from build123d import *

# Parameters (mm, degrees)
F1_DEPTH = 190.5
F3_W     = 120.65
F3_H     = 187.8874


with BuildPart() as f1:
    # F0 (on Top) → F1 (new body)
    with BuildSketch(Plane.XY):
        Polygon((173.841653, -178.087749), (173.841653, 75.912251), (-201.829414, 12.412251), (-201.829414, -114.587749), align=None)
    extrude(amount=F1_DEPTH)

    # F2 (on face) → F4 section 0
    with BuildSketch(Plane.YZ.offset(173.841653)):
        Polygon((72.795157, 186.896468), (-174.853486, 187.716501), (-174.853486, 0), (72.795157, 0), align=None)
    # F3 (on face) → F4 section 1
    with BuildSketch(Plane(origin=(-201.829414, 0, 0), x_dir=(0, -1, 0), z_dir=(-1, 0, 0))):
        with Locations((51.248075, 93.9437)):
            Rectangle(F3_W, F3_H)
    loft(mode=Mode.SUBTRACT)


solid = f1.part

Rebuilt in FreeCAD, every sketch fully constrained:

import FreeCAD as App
import Part
import Sketcher
Q = App.Units.Quantity

doc = App.newDocument("Part")
body = doc.addObject("PartDesign::Body", "Body")

# Sketch on XY plane
sketch1 = body.newObject("Sketcher::SketchObject", "Sketch")
sketch1.AttachmentSupport = (doc.getObject("XY_Plane"), [""])
sketch1.MapMode = "FlatFace"
sketch1.addGeometry([
    Part.LineSegment(App.Vector(174, -178, 0), App.Vector(174, 76, 0)),
    Part.LineSegment(App.Vector(174, 76, 0), App.Vector(-202, 12, 0)),
    Part.LineSegment(App.Vector(-202, 12, 0), App.Vector(-202, -115, 0)),
    Part.LineSegment(App.Vector(-202, -115, 0), App.Vector(174, -178, 0)),
], False)
sketch1.addConstraint([
    Sketcher.Constraint("Coincident", 0, 2, 1, 1),
    Sketcher.Constraint("Coincident", 1, 2, 2, 1),
    Sketcher.Constraint("Coincident", 2, 2, 3, 1),
    Sketcher.Constraint("Coincident", 3, 2, 0, 1),
    Sketcher.Constraint("Vertical", 0),
    Sketcher.Constraint("Vertical", 2),
    Sketcher.Constraint("Equal", 1, 3),
    Sketcher.Constraint("DistanceY", 0, 1, 0, 2, Q("10 in")),
    Sketcher.Constraint("DistanceY", 2, 2, 2, 1, Q("5 in")),
    Sketcher.Constraint("Distance", 1, Q("15 in")),
    Sketcher.Constraint("DistanceY", -1, 1, 0, 2, 75.912251),
    Sketcher.Constraint("DistanceX", -1, 1, 0, 2, 173.841653),
])
pad1 = body.newObject("PartDesign::Pad", "Pad")
pad1.Profile = sketch1
pad1.Length = Q("7.5 in")

# Sketch on YZ plane
sketch2 = body.newObject("Sketcher::SketchObject", "Sketch001")
sketch2.AttachmentSupport = (doc.getObject("YZ_Plane"), [""])
sketch2.MapMode = "FlatFace"
sketch2.AttachmentOffset = App.Placement(App.Vector(0, 0, 173.841653), App.Rotation())
sketch2.addGeometry([
    Part.LineSegment(App.Vector(73, 187, 0), App.Vector(-175, 188, 0)),
    Part.LineSegment(App.Vector(-175, 188, 0), App.Vector(-175, 0, 0)),
    Part.LineSegment(App.Vector(-175, 0, 0), App.Vector(73, 0, 0)),
    Part.LineSegment(App.Vector(73, 0, 0), App.Vector(73, 187, 0)),
], False)
sketch2.addConstraint([
    Sketcher.Constraint("Coincident", 0, 2, 1, 1),
    Sketcher.Constraint("Coincident", 1, 2, 2, 1),
    Sketcher.Constraint("Coincident", 2, 2, 3, 1),
    Sketcher.Constraint("Coincident", 3, 2, 0, 1),
    Sketcher.Constraint("Vertical", 1),
    Sketcher.Constraint("Horizontal", 2),
    Sketcher.Constraint("Vertical", 3),
    Sketcher.Constraint("PointOnObject", 1, 2, -1),
    Sketcher.Constraint("Distance", 0, Q("9.75 in")),
    Sketcher.Constraint("DistanceY", 1, 2, 1, 1, 187.716501),
    Sketcher.Constraint("DistanceY", 3, 1, 3, 2, 186.896468),
    Sketcher.Constraint("DistanceX", 0, 2, -1, 1, 174.853486),
])

# Sketch on YZ plane
sketch3 = body.newObject("Sketcher::SketchObject", "Sketch002")
sketch3.AttachmentSupport = (doc.getObject("YZ_Plane"), [""])
sketch3.MapMode = "FlatFace"
sketch3.AttachmentOffset = App.Placement(App.Vector(0, 0, -201.829414), App.Rotation())
sketch3.addGeometry([
    Part.LineSegment(App.Vector(9, 188, 0), App.Vector(9, 0, 0)),
    Part.LineSegment(App.Vector(9, 0, 0), App.Vector(-112, 0, 0)),
    Part.LineSegment(App.Vector(-112, 0, 0), App.Vector(-112, 188, 0)),
    Part.LineSegment(App.Vector(-112, 188, 0), App.Vector(9, 188, 0)),
], False)
sketch3.addConstraint([
    Sketcher.Constraint("Coincident", 0, 2, 1, 1),
    Sketcher.Constraint("Coincident", 1, 2, 2, 1),
    Sketcher.Constraint("Coincident", 2, 2, 3, 1),
    Sketcher.Constraint("Coincident", 3, 2, 0, 1),
    Sketcher.Constraint("Vertical", 0),
    Sketcher.Constraint("Horizontal", 1),
    Sketcher.Constraint("Vertical", 2),
    Sketcher.Constraint("Horizontal", 3),
    Sketcher.Constraint("PointOnObject", 0, 2, -1),
    Sketcher.Constraint("DistanceX", 1, 2, 1, 1, Q("4.75 in")),
    Sketcher.Constraint("DistanceY", 0, 2, 0, 1, 187.8874),
    Sketcher.Constraint("DistanceX", -1, 1, 0, 2, 9.076925),
])

subtractiveloft = body.newObject("PartDesign::SubtractiveLoft", "SubtractiveLoft")
subtractiveloft.Profile = sketch2
subtractiveloft.Sections = [sketch3]

doc.recompute()
